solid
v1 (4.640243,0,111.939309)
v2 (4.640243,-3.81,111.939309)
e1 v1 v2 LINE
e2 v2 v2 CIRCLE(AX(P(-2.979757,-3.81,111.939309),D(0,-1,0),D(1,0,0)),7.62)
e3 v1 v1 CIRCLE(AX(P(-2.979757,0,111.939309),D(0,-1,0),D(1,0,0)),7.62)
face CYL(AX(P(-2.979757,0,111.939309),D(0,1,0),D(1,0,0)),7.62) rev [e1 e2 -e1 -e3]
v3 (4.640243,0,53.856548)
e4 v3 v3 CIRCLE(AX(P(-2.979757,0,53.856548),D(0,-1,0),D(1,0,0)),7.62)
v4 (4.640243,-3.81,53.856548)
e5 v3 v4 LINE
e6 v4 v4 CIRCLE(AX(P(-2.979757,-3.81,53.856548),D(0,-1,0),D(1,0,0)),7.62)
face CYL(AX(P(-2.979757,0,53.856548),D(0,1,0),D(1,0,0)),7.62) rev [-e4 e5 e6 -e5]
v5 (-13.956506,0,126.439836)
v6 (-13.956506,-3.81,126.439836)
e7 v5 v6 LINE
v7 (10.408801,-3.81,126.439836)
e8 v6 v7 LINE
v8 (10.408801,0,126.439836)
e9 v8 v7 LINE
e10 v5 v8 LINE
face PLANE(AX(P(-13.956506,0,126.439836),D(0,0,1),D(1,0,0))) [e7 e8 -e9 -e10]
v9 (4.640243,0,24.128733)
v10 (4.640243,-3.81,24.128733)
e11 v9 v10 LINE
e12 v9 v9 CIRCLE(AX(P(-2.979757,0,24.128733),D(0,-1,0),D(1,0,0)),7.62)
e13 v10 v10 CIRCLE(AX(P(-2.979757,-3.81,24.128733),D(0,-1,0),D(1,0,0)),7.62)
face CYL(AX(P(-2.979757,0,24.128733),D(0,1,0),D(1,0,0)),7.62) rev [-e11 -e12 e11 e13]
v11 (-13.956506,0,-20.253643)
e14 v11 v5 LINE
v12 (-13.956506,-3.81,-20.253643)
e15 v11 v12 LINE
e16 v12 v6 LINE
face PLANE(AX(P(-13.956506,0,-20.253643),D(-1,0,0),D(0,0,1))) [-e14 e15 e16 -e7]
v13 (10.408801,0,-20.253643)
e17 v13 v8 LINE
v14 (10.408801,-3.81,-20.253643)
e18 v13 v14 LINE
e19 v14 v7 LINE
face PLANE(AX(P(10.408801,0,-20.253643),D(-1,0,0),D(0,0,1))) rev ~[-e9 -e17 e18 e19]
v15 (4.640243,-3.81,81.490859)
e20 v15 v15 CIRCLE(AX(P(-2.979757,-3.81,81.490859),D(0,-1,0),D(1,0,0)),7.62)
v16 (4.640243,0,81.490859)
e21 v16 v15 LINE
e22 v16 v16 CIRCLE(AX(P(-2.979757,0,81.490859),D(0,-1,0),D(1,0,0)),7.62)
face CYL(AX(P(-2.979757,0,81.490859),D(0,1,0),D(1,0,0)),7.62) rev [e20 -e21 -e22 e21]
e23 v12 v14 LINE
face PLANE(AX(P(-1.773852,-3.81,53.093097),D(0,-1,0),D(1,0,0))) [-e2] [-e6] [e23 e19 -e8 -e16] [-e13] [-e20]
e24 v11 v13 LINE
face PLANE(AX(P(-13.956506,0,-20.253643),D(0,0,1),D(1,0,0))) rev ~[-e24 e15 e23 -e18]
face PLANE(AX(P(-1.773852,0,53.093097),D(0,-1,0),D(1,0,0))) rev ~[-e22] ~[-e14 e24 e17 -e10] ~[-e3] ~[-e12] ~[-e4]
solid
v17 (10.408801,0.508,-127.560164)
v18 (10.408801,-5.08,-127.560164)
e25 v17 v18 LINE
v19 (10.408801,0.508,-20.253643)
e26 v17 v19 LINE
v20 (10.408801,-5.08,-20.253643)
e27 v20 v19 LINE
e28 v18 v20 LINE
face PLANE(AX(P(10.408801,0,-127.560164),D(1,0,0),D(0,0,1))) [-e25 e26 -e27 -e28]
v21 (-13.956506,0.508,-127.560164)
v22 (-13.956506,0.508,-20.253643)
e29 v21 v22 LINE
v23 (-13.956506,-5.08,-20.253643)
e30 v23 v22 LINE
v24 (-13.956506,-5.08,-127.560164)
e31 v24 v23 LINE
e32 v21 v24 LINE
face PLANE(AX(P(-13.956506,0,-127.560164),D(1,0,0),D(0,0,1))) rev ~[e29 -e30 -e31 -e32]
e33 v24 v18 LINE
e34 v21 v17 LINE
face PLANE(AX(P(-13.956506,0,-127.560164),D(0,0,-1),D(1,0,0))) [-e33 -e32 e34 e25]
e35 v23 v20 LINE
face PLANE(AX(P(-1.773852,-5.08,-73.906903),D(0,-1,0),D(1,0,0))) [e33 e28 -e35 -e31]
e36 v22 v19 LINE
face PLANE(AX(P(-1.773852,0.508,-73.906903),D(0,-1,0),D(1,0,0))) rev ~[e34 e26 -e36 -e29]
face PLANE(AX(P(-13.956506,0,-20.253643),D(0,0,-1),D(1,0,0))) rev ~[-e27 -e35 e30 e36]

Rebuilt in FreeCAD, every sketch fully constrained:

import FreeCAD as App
import Part
import Sketcher

V = App.Vector
Q = App.Units.Quantity


def add_polygon(sketch, points):
    """Adds a closed chain of lines whose ends are joined by coincident constraints."""
    first, n = sketch.GeometryCount, len(points)
    for a, b in zip(points, points[1:] + points[:1]):
        sketch.addGeometry(Part.LineSegment(App.Vector(*a, 0), App.Vector(*b, 0)), False)
    for i in range(n):
        sketch.addConstraint(Sketcher.Constraint("Coincident", first + i, 2, first + (i + 1) % n, 1))

doc = App.newDocument("Part")
body = doc.addObject("PartDesign::Body", "Body")

sketch1 = body.newObject("Sketcher::SketchObject", "Sketch")
sketch1.AttachmentSupport = (doc.getObject("XZ_Plane"), [""])
sketch1.MapMode = "FlatFace"
add_polygon(sketch1, [(-14, 126), (-14, -20), (10, -20), (10, 126)])
sketch1.addGeometry(Part.Circle(V(-3, 24, 0), V(0, 0, 1), 8), False)
sketch1.addGeometry(Part.Circle(V(-3, 54, 0), V(0, 0, 1), 8), False)
sketch1.addGeometry(Part.Circle(V(-3, 81, 0), V(0, 0, 1), 8), False)
sketch1.addGeometry(Part.Circle(V(-3, 112, 0), V(0, 0, 1), 8), False)
sketch1.addConstraint(Sketcher.Constraint("Vertical", 0))
sketch1.addConstraint(Sketcher.Constraint("Horizontal", 1))
sketch1.addConstraint(Sketcher.Constraint("Vertical", 2))
sketch1.addConstraint(Sketcher.Constraint("Horizontal", 3))
sketch1.addConstraint(Sketcher.Constraint("Equal", 4, 5))
sketch1.addConstraint(Sketcher.Constraint("Equal", 5, 6))
sketch1.addConstraint(Sketcher.Constraint("Equal", 6, 7))
sketch1.addConstraint(Sketcher.Constraint("Vertical", 4, 3, 5, 3))
sketch1.addConstraint(Sketcher.Constraint("Vertical", 5, 3, 6, 3))
sketch1.addConstraint(Sketcher.Constraint("Vertical", 6, 3, 7, 3))
sketch1.addConstraint(Sketcher.Constraint("Diameter", 4, Q("0.6 in")))
sketch1.addConstraint(Sketcher.Constraint("DistanceY", 0, 2, 0, 1, 146.693479))
sketch1.addConstraint(Sketcher.Constraint("DistanceX", -1, 1, 1, 2, 10.408801))
sketch1.addConstraint(Sketcher.Constraint("DistanceY", 0, 2, 6, 3, 101.744501))
sketch1.addConstraint(Sketcher.Constraint("DistanceX", 1, 1, 1, 2, 24.365307))
sketch1.addConstraint(Sketcher.Constraint("DistanceY", -1, 1, 6, 3, 81.490859))
sketch1.addConstraint(Sketcher.Constraint("DistanceY", -1, 1, 7, 3, 111.939309))
sketch1.addConstraint(Sketcher.Constraint("DistanceY", 5, 3, 6, 3, 27.634311))
sketch1.addConstraint(Sketcher.Constraint("DistanceX", 0, 2, 4, 3, 10.976748))
sketch1.addConstraint(Sketcher.Constraint("DistanceY", -1, 1, 4, 3, 24.128733))
pad1 = body.newObject("PartDesign::Pad", "Pad")
pad1.Profile = sketch1
pad1.Length = Q("0.15 in")
body2 = doc.addObject("PartDesign::Body", "Body001")

sketch2 = body2.newObject("Sketcher::SketchObject", "Sketch001")
sketch2.AttachmentSupport = (doc.getObject("XZ_Plane001"), [""])
sketch2.MapMode = "FlatFace"
add_polygon(sketch2, [(-14, -20), (-14, -128), (10, -128), (10, -20)])
sketch2.addConstraint(Sketcher.Constraint("Vertical", 0))
sketch2.addConstraint(Sketcher.Constraint("Horizontal", 1))
sketch2.addConstraint(Sketcher.Constraint("Vertical", 2))
sketch2.addConstraint(Sketcher.Constraint("Horizontal", 3))
sketch2.addConstraint(Sketcher.Constraint("DistanceY", 0, 2, 0, 1, 107.306521))
sketch2.addConstraint(Sketcher.Constraint("DistanceX", -1, 1, 1, 2, 10.408801))
sketch2.addConstraint(Sketcher.Constraint("DistanceX", 1, 1, 1, 2, 24.365307))
sketch2.addConstraint(Sketcher.Constraint("DistanceY", 0, 2, -1, 1, 127.560164))
pad2 = body2.newObject("PartDesign::Pad", "Pad001")
pad2.Profile = sketch2
pad2.Type = "TwoLengths"
pad2.Length = Q("0.2 in")
pad2.Length2 = Q("0.02 in")

doc.recompute()
